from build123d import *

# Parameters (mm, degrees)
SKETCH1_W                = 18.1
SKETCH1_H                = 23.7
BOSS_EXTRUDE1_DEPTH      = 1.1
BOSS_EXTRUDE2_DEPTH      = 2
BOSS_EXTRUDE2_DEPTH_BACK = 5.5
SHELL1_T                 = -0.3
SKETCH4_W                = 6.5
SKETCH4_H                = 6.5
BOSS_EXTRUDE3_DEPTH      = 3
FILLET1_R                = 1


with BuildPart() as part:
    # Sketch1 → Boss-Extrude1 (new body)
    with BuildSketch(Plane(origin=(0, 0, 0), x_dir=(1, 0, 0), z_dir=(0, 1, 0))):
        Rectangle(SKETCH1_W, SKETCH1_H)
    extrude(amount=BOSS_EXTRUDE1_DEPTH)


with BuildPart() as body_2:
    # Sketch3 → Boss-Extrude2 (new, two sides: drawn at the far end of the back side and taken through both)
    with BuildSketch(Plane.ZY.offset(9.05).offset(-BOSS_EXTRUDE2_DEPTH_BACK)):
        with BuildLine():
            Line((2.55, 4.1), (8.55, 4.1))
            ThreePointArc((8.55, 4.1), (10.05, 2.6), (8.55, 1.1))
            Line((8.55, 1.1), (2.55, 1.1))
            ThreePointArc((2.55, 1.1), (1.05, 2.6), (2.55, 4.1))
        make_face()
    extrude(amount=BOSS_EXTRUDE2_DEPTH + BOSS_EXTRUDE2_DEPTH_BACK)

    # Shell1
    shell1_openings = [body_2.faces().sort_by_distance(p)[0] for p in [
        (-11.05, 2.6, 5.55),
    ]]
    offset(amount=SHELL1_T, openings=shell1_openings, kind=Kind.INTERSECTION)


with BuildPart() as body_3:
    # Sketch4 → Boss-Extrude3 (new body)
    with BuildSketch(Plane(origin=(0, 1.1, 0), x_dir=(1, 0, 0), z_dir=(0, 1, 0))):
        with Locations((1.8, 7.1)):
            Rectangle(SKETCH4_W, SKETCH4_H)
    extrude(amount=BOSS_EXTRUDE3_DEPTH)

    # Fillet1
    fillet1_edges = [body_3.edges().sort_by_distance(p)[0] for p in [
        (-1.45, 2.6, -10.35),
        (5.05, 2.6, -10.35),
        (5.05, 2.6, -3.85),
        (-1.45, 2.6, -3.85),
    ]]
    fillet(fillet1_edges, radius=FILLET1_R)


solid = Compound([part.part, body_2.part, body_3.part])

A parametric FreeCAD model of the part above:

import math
import FreeCAD as App
import Part
import Sketcher
from FreeCAD import Vector


def edges_at(feature, points):
    """Names of the edges that pass closest to the given points."""
    edges = feature.Shape.Edges
    near = lambda p: min(range(len(edges)), key=lambda i: edges[i].distToShape(Part.Vertex(*p))[0])
    return sorted({f"Edge{near(p) + 1}" for p in points})


def faces_at(feature, points):
    """Names of the faces that lie closest to the given points."""
    faces = feature.Shape.Faces
    near = lambda p: min(range(len(faces)), key=lambda i: faces[i].distToShape(Part.Vertex(*p))[0])
    return sorted({f"Face{near(p) + 1}" for p in points})


def add_polygon(sketch, points):
    """Adds a closed chain of lines whose ends are joined by coincident constraints."""
    first, n = sketch.GeometryCount, len(points)
    for a, b in zip(points, points[1:] + points[:1]):
        sketch.addGeometry(Part.LineSegment(App.Vector(*a, 0), App.Vector(*b, 0)), False)
    for i in range(n):
        sketch.addConstraint(Sketcher.Constraint("Coincident", first + i, 2, first + (i + 1) % n, 1))

doc = App.newDocument("Part")
body = doc.addObject("PartDesign::Body", "Body")

# Sketch on XZ plane
sketch1 = body.newObject("Sketcher::SketchObject", "Sketch")
sketch1.AttachmentSupport = (doc.getObject("XZ_Plane"), [""])
sketch1.MapMode = "FlatFace"
add_polygon(sketch1, [(-9.05, -11.85), (-9.05, 11.85), (9.05, 11.85), (9.05, -11.85)])  # lines 0-3
sketch1.addConstraint(Sketcher.Constraint("Vertical", 0))
sketch1.addConstraint(Sketcher.Constraint("Horizontal", 1))
sketch1.addConstraint(Sketcher.Constraint("Vertical", 2))
sketch1.addConstraint(Sketcher.Constraint("Horizontal", 3))
sketch1.addConstraint(Sketcher.Constraint("Symmetric", 0, 2, 2, 2, -1, 1))
sketch1.addConstraint(Sketcher.Constraint("DistanceX", 1, 1, 1, 2, 18.1))
sketch1.addConstraint(Sketcher.Constraint("DistanceY", 0, 1, 0, 2, 23.7))
pad1 = body.newObject("PartDesign::Pad", "Pad")
pad1.Profile = sketch1
pad1.Length = 1.1
pad1.Reversed = True
body2 = doc.addObject("PartDesign::Body", "Body001")

# Sketch on YZ plane
sketch2 = body2.newObject("Sketcher::SketchObject", "Sketch001")
sketch2.AttachmentSupport = (doc.getObject("YZ_Plane001"), [""])
sketch2.MapMode = "FlatFace"
sketch2.AttachmentOffset = App.Placement(Vector(0, 0, -9.05), App.Rotation())
sketch2.addGeometry(Part.LineSegment(Vector(4.1, 8.55, 0), Vector(4.1, 2.55, 0)), False)
sketch2.addGeometry(Part.ArcOfCircle(Part.Circle(Vector(2.6, 2.55, 0), Vector(0, 0, 1), 1.5), math.radians(180), math.radians(360)), False)
sketch2.addGeometry(Part.LineSegment(Vector(1.1, 2.55, 0), Vector(1.1, 8.55, 0)), False)
sketch2.addGeometry(Part.ArcOfCircle(Part.Circle(Vector(2.6, 8.55, 0), Vector(0, 0, 1), 1.5), math.radians(0), math.radians(180)), False)
sketch2.addConstraint(Sketcher.Constraint("Tangent", 0, 2, 1, 2))
sketch2.addConstraint(Sketcher.Constraint("Tangent", 1, 1, 2, 1))
sketch2.addConstraint(Sketcher.Constraint("Tangent", 2, 2, 3, 2))
sketch2.addConstraint(Sketcher.Constraint("Tangent", 3, 1, 0, 1))
sketch2.addConstraint(Sketcher.Constraint("Vertical", 0))
sketch2.addConstraint(Sketcher.Constraint("Vertical", 2))
sketch2.addConstraint(Sketcher.Constraint("Radius", 1, 1.5))
sketch2.addConstraint(Sketcher.Constraint("DistanceY", 0, 2, 0, 1, 6.0))
sketch2.addConstraint(Sketcher.Constraint("DistanceX", -1, 1, 1, 3, 2.6))
sketch2.addConstraint(Sketcher.Constraint("DistanceY", -1, 1, 1, 3, 2.55))
pad2 = body2.newObject("PartDesign::Pad", "Pad001")
pad2.Profile = sketch2
pad2.Type = "TwoLengths"
pad2.Length = 2
pad2.Length2 = 5.5
pad2.Reversed = True
doc.recompute()

thickness = body2.newObject("PartDesign::Thickness", "Thickness")
thickness.Base = (pad2, faces_at(pad2, [(-11.05, 2.6, 5.55)]))
thickness.Value = 0.3
thickness.Reversed = True
thickness.Join = "Intersection"
body3 = doc.addObject("PartDesign::Body", "Body002")

# Sketch on XZ plane
sketch3 = body3.newObject("Sketcher::SketchObject", "Sketch002")
sketch3.AttachmentSupport = (doc.getObject("XZ_Plane002"), [""])
sketch3.MapMode = "FlatFace"
sketch3.AttachmentOffset = App.Placement(Vector(0, 0, -1.1), App.Rotation())
add_polygon(sketch3, [(-1.45, -10.35), (-1.45, -3.85), (5.05, -3.85), (5.05, -10.35)])  # lines 0-3
sketch3.addConstraint(Sketcher.Constraint("Vertical", 0))
sketch3.addConstraint(Sketcher.Constraint("Horizontal", 1))
sketch3.addConstraint(Sketcher.Constraint("Vertical", 2))
sketch3.addConstraint(Sketcher.Constraint("Horizontal", 3))
sketch3.addConstraint(Sketcher.Constraint("Equal", 3, 0))
sketch3.addConstraint(Sketcher.Constraint("DistanceX", 1, 1, 1, 2, 6.5))
sketch3.addConstraint(Sketcher.Constraint("DistanceX", 0, 2, -1, 1, 1.45))
sketch3.addConstraint(Sketcher.Constraint("DistanceY", 0, 2, -1, 1, 3.85))
pad3 = body3.newObject("PartDesign::Pad", "Pad002")
pad3.Profile = sketch3
pad3.Length = 3
pad3.Reversed = True
doc.recompute()

fillet = body3.newObject("PartDesign::Fillet", "Fillet")
fillet.Base = (pad3, edges_at(pad3, [
    (-1.45, 2.6, -10.35),
    (5.05, 2.6, -10.35),
    (5.05, 2.6, -3.85),
    (-1.45, 2.6, -3.85),
]))
fillet.Radius = 1

doc.recompute()
